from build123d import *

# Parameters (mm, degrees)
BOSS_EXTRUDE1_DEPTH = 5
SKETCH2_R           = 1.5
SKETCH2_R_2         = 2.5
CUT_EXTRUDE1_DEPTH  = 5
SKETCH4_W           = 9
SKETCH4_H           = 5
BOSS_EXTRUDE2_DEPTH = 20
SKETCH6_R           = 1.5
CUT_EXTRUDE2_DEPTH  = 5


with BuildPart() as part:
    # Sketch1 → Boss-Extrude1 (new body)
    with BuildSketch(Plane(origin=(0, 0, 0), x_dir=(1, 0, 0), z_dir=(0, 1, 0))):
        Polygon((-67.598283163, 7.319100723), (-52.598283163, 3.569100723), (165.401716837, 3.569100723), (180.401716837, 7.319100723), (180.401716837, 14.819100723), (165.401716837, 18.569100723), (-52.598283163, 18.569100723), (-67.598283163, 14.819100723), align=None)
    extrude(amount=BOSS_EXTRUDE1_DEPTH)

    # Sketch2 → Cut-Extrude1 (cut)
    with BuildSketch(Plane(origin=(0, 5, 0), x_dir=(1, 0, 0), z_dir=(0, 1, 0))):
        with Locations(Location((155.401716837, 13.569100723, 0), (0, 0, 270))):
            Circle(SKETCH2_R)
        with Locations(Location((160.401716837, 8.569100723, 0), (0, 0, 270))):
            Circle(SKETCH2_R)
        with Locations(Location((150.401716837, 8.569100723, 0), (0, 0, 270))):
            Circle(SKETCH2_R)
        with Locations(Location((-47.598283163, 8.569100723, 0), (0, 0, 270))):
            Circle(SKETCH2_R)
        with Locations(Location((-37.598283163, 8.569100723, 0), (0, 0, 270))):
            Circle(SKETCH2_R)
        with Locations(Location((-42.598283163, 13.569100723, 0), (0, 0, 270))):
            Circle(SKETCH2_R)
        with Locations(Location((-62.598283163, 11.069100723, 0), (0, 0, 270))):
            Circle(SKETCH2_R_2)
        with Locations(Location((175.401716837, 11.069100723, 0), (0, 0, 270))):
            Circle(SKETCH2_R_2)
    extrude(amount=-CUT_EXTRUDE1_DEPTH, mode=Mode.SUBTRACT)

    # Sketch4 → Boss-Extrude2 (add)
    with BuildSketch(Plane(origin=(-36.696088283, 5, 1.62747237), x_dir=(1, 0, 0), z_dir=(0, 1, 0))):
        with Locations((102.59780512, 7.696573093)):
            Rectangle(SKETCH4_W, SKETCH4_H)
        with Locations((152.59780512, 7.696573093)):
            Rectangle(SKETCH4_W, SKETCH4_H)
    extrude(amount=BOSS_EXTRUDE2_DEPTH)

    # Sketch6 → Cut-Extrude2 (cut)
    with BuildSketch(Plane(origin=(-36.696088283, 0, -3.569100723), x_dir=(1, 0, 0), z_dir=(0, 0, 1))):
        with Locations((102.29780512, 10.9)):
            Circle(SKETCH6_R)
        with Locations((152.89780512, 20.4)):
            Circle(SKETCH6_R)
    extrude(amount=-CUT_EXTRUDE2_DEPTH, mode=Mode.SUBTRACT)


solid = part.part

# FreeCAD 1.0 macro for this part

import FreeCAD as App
import Part
import Sketcher

V = App.Vector
Q = App.Units.Quantity


def add_polygon(sketch, points):
    """Adds a closed chain of lines whose ends are joined by coincident constraints."""
    first, n = sketch.GeometryCount, len(points)
    for a, b in zip(points, points[1:] + points[:1]):
        sketch.addGeometry(Part.LineSegment(App.Vector(*a, 0), App.Vector(*b, 0)), False)
    for i in range(n):
        sketch.addConstraint(Sketcher.Constraint("Coincident", first + i, 2, first + (i + 1) % n, 1))

doc = App.newDocument("Part")
params = doc.addObject("Spreadsheet::Sheet", "Params")
for row, (alias, value) in enumerate([
    ("sketch1_width", "218 mm"),
    ("sketch1_height", "7.5 mm"),
    ("pad1_length", "5 mm"),
    ("sketch2_diameter", "3 mm"),
    ("sketch2_diameter2", "5 mm"),
    ("pocket1_length", "5 mm"),
    ("sketch3_width", "9 mm"),
    ("sketch3_height", "5 mm"),
    ("pad2_length", "20 mm"),
    ("sketch4_diameter", "3 mm"),
    ("pocket2_length", "5 mm"),
], start=1):
    params.set(f"A{row}", alias)
    params.set(f"B{row}", "=" + value)
    params.setAlias(f"B{row}", alias)

body = doc.addObject("PartDesign::Body", "Body")

sketch1 = body.newObject("Sketcher::SketchObject", "Sketch")
sketch1.AttachmentSupport = (doc.getObject("XZ_Plane"), [""])
sketch1.MapMode = "FlatFace"
add_polygon(sketch1, [(-68, -7), (-53, -4), (165, -4), (180, -7), (180, -15), (165, -19), (-53, -19), (-68, -15)])
sketch1.addConstraint(Sketcher.Constraint("Horizontal", 1))
sketch1.addConstraint(Sketcher.Constraint("Vertical", 3))
sketch1.addConstraint(Sketcher.Constraint("Horizontal", 5))
sketch1.addConstraint(Sketcher.Constraint("Vertical", 7))
sketch1.addConstraint(Sketcher.Constraint("Parallel", 0, 4))
sketch1.addConstraint(Sketcher.Constraint("Parallel", 2, 6))
sketch1.addConstraint(Sketcher.Constraint("Horizontal", 3, 2, 6, 2))
sketch1.addConstraint(Sketcher.Constraint("Horizontal", 2, 2, 7, 2))
sketch1.addConstraint(Sketcher.Constraint("Vertical", 1, 2, 4, 2))
sketch1.addConstraint(Sketcher.Constraint("Vertical", 0, 2, 5, 2))
sketch1.addConstraint(Sketcher.Constraint("DistanceX", 1, 1, 1, 2, Q("218 mm")))
sketch1.addConstraint(Sketcher.Constraint("DistanceY", 3, 2, 3, 1, Q("7.5 mm")))
sketch1.addConstraint(Sketcher.Constraint("DistanceX", 1, 2, 2, 2, Q("15 mm")))
sketch1.addConstraint(Sketcher.Constraint("DistanceY", 4, 2, 1, 2, Q("15 mm")))
sketch1.addConstraint(Sketcher.Constraint("DistanceY", 0, 2, -1, 1, Q("3.569101 mm")))
sketch1.addConstraint(Sketcher.Constraint("DistanceX", 0, 2, -1, 1, Q("52.598283 mm")))
sketch1.setExpression("Constraints[18]", "Params.sketch1_width")
sketch1.setExpression("Constraints[19]", "Params.sketch1_height")
pad1 = body.newObject("PartDesign::Pad", "Pad")
pad1.Profile = sketch1
pad1.setExpression("Length", "Params.pad1_length")
pad1.Reversed = True

sketch2 = body.newObject("Sketcher::SketchObject", "Sketch001")
sketch2.AttachmentSupport = (doc.getObject("XZ_Plane"), [""])
sketch2.MapMode = "FlatFace"
sketch2.AttachmentOffset = App.Placement(V(0, 0, -5), App.Rotation())
sketch2.addGeometry(Part.Circle(V(155.4, -13.6, 0), V(0, 0, 1), 1.5), False)
sketch2.addGeometry(Part.Circle(V(160.4, -8.6, 0), V(0, 0, 1), 1.5), False)
sketch2.addGeometry(Part.Circle(V(150.4, -8.6, 0), V(0, 0, 1), 1.5), False)
sketch2.addGeometry(Part.Circle(V(-47.6, -8.6, 0), V(0, 0, 1), 1.5), False)
sketch2.addGeometry(Part.Circle(V(-37.6, -8.6, 0), V(0, 0, 1), 1.5), False)
sketch2.addGeometry(Part.Circle(V(-42.6, -13.6, 0), V(0, 0, 1), 1.5), False)
sketch2.addGeometry(Part.Circle(V(-62.6, -11.1, 0), V(0, 0, 1), 2.5), False)
sketch2.addGeometry(Part.Circle(V(175.4, -11.1, 0), V(0, 0, 1), 2.5), False)
sketch2.addConstraint(Sketcher.Constraint("Equal", 0, 1))
sketch2.addConstraint(Sketcher.Constraint("Equal", 1, 2))
sketch2.addConstraint(Sketcher.Constraint("Equal", 2, 3))
sketch2.addConstraint(Sketcher.Constraint("Equal", 3, 4))
sketch2.addConstraint(Sketcher.Constraint("Equal", 4, 5))
sketch2.addConstraint(Sketcher.Constraint("Equal", 6, 7))
sketch2.addConstraint(Sketcher.Constraint("Horizontal", 1, 3, 2, 3))
sketch2.addConstraint(Sketcher.Constraint("Horizontal", 2, 3, 3, 3))
sketch2.addConstraint(Sketcher.Constraint("Horizontal", 3, 3, 4, 3))
sketch2.addConstraint(Sketcher.Constraint("Horizontal", 0, 3, 5, 3))
sketch2.addConstraint(Sketcher.Constraint("Horizontal", 6, 3, 7, 3))
sketch2.addConstraint(Sketcher.Constraint("Diameter", 0, Q("3 mm")))
sketch2.addConstraint(Sketcher.Constraint("Diameter", 6, Q("5 mm")))
sketch2.addConstraint(Sketcher.Constraint("DistanceX", 0, 3, 1, 3, Q("5 mm")))
sketch2.addConstraint(Sketcher.Constraint("DistanceY", 0, 3, 1, 3, Q("5 mm")))
sketch2.addConstraint(Sketcher.Constraint("DistanceX", 2, 3, 0, 3, Q("5 mm")))
sketch2.addConstraint(Sketcher.Constraint("DistanceX", 3, 3, 2, 3, Q("198 mm")))
sketch2.addConstraint(Sketcher.Constraint("DistanceX", 3, 3, 4, 3, Q("10 mm")))
sketch2.addConstraint(Sketcher.Constraint("DistanceX", 3, 3, 5, 3, Q("5 mm")))
sketch2.addConstraint(Sketcher.Constraint("DistanceX", 6, 3, 3, 3, Q("15 mm")))
sketch2.addConstraint(Sketcher.Constraint("DistanceX", 1, 3, 7, 3, Q("15 mm")))
sketch2.addConstraint(Sketcher.Constraint("DistanceY", 6, 3, 3, 3, Q("2.5 mm")))
sketch2.addConstraint(Sketcher.Constraint("DistanceY", 0, 3, -1, 1, Q("13.569101 mm")))
sketch2.addConstraint(Sketcher.Constraint("DistanceX", -1, 1, 0, 3, Q("155.401717 mm")))
sketch2.setExpression("Constraints[11]", "Params.sketch2_diameter")
sketch2.setExpression("Constraints[12]", "Params.sketch2_diameter2")
pocket1 = body.newObject("PartDesign::Pocket", "Pocket")
pocket1.Profile = sketch2
pocket1.setExpression("Length", "Params.pocket1_length")
pocket1.Reversed = True

sketch3 = body.newObject("Sketcher::SketchObject", "Sketch002")
sketch3.AttachmentSupport = (doc.getObject("XZ_Plane"), [""])
sketch3.MapMode = "FlatFace"
sketch3.AttachmentOffset = App.Placement(V(0, 0, -5), App.Rotation())
add_polygon(sketch3, [(61, -9), (61, -4), (70, -4), (70, -9)])
add_polygon(sketch3, [(111, -9), (111, -4), (120, -4), (120, -9)])
sketch3.addConstraint(Sketcher.Constraint("Vertical", 0))
sketch3.addConstraint(Sketcher.Constraint("Horizontal", 1))
sketch3.addConstraint(Sketcher.Constraint("Vertical", 2))
sketch3.addConstraint(Sketcher.Constraint("Horizontal", 3))
sketch3.addConstraint(Sketcher.Constraint("Vertical", 4))
sketch3.addConstraint(Sketcher.Constraint("Horizontal", 5))
sketch3.addConstraint(Sketcher.Constraint("Vertical", 6))
sketch3.addConstraint(Sketcher.Constraint("Horizontal", 7))
sketch3.addConstraint(Sketcher.Constraint("Horizontal", 1, 2, 4, 2))
sketch3.addConstraint(Sketcher.Constraint("Horizontal", 3, 2, 6, 2))
sketch3.addConstraint(Sketcher.Constraint("Equal", 3, 5))
sketch3.addConstraint(Sketcher.Constraint("DistanceX", 1, 1, 1, 2, Q("9 mm")))
sketch3.addConstraint(Sketcher.Constraint("DistanceY", 0, 1, 0, 2, Q("5 mm")))
sketch3.addConstraint(Sketcher.Constraint("DistanceX", 1, 2, 4, 2, Q("41 mm")))
sketch3.addConstraint(Sketcher.Constraint("DistanceY", 0, 2, -1, 1, Q("3.569101 mm")))
sketch3.addConstraint(Sketcher.Constraint("DistanceX", -1, 1, 0, 2, Q("61.401717 mm")))
sketch3.setExpression("Constraints[19]", "Params.sketch3_width")
sketch3.setExpression("Constraints[20]", "Params.sketch3_height")
pad2 = body.newObject("PartDesign::Pad", "Pad001")
pad2.Profile = sketch3
pad2.setExpression("Length", "Params.pad2_length")
pad2.Reversed = True

sketch4 = body.newObject("Sketcher::SketchObject", "Sketch003")
sketch4.AttachmentSupport = (doc.getObject("XY_Plane"), [""])
sketch4.MapMode = "FlatFace"
sketch4.AttachmentOffset = App.Placement(V(0, 0, -3.569101), App.Rotation())
sketch4.addGeometry(Part.Circle(V(65.6, 10.9, 0), V(0, 0, 1), 1.5), False)
sketch4.addGeometry(Part.Circle(V(116.2, 20.4, 0), V(0, 0, 1), 1.5), False)
sketch4.addConstraint(Sketcher.Constraint("Equal", 0, 1))
sketch4.addConstraint(Sketcher.Constraint("Diameter", 0, Q("3 mm")))
sketch4.addConstraint(Sketcher.Constraint("DistanceY", -1, 1, 0, 3, Q("10.9 mm")))
sketch4.addConstraint(Sketcher.Constraint("DistanceY", -1, 1, 1, 3, Q("20.4 mm")))
sketch4.addConstraint(Sketcher.Constraint("DistanceX", 0, 3, 1, 3, Q("50.6 mm")))
sketch4.addConstraint(Sketcher.Constraint("DistanceX", -1, 1, 0, 3, Q("65.601717 mm")))
sketch4.setExpression("Constraints[1]", "Params.sketch4_diameter")
pocket2 = body.newObject("PartDesign::Pocket", "Pocket001")
pocket2.Profile = sketch4
pocket2.setExpression("Length", "Params.pocket2_length")

doc.recompute()
